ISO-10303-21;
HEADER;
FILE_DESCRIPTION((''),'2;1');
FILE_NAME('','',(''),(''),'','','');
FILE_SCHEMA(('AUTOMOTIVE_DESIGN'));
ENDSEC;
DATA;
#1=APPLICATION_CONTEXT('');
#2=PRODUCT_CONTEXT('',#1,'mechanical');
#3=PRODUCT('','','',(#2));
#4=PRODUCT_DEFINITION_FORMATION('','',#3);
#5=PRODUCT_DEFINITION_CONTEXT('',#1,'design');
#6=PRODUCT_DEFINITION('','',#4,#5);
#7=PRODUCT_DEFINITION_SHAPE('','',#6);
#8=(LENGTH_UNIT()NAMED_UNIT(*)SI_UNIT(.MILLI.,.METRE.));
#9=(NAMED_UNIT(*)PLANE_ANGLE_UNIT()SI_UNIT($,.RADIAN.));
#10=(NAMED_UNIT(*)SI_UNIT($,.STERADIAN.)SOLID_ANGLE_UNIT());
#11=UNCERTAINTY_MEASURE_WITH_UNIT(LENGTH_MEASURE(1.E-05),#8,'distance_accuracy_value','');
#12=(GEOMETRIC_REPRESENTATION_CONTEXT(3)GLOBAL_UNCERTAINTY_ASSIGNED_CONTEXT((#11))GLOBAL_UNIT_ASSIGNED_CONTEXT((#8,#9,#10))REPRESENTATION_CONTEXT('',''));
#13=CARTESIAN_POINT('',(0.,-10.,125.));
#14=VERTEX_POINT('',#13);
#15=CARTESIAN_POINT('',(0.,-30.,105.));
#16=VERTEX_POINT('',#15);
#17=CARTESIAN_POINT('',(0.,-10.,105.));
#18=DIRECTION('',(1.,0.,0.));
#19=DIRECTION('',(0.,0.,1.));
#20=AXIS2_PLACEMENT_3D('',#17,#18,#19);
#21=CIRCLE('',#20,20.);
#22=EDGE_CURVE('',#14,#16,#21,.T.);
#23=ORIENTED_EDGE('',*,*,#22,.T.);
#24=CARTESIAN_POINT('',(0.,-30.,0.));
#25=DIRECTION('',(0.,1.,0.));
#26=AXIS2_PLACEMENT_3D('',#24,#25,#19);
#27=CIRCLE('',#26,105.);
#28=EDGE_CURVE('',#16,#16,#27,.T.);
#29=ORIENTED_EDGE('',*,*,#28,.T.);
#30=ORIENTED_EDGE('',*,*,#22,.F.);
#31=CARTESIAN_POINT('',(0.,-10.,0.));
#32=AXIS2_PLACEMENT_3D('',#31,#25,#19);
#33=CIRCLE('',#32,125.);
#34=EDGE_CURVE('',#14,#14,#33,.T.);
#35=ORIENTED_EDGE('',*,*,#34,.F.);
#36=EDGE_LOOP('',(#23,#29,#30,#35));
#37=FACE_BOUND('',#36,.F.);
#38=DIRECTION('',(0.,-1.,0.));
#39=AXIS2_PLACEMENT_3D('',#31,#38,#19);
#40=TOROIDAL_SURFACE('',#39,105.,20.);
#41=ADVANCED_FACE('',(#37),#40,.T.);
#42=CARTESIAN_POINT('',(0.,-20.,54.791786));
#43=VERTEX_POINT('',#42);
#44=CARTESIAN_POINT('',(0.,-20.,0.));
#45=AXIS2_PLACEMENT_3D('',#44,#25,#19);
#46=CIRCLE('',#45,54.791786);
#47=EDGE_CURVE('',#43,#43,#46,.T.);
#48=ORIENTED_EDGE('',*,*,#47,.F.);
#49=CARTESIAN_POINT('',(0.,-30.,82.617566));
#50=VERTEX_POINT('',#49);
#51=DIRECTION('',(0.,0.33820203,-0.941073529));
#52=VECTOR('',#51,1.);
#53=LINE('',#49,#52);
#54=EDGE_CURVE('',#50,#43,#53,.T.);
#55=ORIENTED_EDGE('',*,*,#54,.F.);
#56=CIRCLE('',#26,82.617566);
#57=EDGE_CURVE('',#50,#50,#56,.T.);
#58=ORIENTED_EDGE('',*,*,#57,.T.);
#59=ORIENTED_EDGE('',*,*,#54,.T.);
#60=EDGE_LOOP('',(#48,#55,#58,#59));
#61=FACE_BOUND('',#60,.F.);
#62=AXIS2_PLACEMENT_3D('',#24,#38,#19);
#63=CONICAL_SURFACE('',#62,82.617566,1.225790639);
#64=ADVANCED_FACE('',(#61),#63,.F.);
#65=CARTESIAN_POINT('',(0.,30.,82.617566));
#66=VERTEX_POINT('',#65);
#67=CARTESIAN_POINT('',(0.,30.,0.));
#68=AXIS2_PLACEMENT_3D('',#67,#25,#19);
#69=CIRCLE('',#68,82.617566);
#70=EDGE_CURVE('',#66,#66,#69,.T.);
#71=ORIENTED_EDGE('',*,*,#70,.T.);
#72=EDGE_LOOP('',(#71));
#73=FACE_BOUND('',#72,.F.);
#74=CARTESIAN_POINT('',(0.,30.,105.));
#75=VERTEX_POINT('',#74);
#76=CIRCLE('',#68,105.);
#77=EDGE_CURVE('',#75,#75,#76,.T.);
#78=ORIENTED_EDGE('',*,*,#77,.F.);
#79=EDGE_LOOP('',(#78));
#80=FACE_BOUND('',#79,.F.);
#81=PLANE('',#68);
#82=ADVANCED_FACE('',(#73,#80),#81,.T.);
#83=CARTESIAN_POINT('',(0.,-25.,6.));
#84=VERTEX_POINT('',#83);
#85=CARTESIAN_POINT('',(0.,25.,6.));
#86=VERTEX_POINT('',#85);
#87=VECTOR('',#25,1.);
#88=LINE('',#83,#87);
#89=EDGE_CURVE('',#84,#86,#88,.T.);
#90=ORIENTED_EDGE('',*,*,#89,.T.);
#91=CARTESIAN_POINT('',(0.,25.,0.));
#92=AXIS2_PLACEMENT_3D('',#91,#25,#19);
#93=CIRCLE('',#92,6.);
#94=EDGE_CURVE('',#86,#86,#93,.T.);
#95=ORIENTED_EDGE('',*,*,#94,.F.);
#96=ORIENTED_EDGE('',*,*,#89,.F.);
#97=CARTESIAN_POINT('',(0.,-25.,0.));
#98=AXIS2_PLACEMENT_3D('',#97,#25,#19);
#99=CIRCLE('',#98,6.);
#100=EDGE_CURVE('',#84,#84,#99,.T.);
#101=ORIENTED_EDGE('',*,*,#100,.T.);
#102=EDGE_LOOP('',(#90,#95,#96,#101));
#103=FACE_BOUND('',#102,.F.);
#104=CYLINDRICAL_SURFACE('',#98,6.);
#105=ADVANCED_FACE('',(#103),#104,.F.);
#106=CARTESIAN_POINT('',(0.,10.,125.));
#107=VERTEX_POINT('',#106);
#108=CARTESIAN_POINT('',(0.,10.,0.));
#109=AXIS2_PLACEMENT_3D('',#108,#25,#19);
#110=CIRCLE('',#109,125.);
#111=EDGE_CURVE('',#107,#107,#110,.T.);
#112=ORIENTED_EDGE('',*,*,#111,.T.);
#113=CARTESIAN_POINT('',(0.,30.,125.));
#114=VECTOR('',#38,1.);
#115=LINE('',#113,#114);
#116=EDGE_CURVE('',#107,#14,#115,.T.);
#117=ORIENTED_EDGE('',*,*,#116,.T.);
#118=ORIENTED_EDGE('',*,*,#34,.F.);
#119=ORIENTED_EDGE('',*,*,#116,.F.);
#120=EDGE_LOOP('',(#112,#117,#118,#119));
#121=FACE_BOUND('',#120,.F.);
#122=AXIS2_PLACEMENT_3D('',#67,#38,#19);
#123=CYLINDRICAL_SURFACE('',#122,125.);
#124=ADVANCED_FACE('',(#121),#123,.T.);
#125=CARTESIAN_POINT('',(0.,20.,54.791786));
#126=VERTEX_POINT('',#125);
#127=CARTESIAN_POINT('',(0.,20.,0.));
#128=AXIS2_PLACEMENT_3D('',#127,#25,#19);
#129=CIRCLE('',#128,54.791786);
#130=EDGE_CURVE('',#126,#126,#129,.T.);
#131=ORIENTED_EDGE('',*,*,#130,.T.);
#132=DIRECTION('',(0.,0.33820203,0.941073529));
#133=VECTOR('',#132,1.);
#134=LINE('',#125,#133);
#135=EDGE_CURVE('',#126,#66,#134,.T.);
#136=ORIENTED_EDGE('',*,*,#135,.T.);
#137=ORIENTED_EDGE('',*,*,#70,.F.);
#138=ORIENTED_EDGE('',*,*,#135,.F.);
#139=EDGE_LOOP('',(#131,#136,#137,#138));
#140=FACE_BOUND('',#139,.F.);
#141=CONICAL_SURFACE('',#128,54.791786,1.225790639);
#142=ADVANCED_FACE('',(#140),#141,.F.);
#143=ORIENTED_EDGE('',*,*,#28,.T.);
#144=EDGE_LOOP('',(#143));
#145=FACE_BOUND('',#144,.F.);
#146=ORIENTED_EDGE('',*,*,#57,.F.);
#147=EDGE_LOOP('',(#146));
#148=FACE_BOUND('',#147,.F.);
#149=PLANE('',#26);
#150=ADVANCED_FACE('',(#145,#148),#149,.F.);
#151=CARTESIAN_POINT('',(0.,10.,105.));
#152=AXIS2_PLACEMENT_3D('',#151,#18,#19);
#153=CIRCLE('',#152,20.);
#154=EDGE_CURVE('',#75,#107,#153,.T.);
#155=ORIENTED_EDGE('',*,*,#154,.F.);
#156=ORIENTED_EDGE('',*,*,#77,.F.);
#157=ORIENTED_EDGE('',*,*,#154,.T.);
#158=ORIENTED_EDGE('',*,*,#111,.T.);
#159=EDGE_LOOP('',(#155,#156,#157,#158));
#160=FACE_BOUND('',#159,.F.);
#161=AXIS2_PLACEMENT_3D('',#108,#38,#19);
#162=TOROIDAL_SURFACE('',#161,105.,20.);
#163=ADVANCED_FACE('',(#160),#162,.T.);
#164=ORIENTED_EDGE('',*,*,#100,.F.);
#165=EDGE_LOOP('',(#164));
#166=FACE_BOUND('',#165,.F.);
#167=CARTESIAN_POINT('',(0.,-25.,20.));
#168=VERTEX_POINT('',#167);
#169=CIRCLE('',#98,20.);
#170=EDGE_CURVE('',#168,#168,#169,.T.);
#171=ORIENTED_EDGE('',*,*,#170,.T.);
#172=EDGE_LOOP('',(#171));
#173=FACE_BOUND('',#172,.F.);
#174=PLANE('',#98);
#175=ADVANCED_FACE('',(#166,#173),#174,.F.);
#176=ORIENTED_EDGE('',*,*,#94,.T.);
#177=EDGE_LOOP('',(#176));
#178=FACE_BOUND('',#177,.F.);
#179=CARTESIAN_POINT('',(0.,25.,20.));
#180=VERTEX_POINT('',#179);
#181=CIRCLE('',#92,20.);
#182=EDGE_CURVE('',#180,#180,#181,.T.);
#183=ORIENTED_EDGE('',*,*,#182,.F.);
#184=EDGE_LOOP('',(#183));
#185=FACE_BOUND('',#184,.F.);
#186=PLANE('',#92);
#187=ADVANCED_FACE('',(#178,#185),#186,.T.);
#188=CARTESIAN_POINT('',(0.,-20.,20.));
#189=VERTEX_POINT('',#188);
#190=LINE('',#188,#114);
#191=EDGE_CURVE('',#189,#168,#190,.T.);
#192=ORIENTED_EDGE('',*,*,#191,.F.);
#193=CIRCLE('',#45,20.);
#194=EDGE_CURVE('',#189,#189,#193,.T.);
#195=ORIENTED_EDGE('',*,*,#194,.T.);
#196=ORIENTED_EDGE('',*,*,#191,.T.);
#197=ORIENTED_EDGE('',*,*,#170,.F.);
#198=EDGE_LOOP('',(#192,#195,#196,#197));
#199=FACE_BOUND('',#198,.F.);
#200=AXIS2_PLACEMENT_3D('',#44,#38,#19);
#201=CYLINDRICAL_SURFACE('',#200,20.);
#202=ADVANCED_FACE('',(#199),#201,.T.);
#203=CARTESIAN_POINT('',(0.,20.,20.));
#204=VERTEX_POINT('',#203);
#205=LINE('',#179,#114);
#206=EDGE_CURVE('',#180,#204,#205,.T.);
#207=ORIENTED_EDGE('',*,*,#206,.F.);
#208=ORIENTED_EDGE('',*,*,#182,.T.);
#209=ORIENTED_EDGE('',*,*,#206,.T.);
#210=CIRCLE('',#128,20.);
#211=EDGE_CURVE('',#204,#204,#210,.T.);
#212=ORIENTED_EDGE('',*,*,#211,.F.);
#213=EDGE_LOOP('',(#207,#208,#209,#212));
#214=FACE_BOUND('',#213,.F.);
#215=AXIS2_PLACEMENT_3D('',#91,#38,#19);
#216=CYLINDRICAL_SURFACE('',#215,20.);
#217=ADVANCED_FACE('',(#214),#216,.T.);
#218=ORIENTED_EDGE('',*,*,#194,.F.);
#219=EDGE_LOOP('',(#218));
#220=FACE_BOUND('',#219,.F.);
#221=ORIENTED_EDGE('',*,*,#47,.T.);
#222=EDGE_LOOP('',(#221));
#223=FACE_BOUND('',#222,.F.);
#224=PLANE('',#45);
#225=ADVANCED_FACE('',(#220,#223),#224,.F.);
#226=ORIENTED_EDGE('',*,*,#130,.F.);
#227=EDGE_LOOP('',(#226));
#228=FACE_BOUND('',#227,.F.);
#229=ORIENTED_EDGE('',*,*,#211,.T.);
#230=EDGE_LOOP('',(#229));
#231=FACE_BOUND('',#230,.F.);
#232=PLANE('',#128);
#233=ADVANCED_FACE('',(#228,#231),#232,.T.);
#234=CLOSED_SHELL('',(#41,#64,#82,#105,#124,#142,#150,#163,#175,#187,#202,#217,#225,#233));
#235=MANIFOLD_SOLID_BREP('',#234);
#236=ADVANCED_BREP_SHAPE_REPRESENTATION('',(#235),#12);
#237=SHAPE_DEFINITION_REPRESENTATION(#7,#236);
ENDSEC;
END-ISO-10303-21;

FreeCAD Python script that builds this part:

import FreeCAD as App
import Part
import Sketcher


def edges_at(feature, points):
    """Names of the edges that pass closest to the given points."""
    edges = feature.Shape.Edges
    near = lambda p: min(range(len(edges)), key=lambda i: edges[i].distToShape(Part.Vertex(*p))[0])
    return sorted({f"Edge{near(p) + 1}" for p in points})


def add_polygon(sketch, points):
    """Adds a closed chain of lines whose ends are joined by coincident constraints."""
    first, n = sketch.GeometryCount, len(points)
    for a, b in zip(points, points[1:] + points[:1]):
        sketch.addGeometry(Part.LineSegment(App.Vector(*a, 0), App.Vector(*b, 0)), False)
    for i in range(n):
        sketch.addConstraint(Sketcher.Constraint("Coincident", first + i, 2, first + (i + 1) % n, 1))

doc = App.newDocument("Part")
params = doc.addObject("Spreadsheet::Sheet", "Params")
for row, (alias, value) in enumerate([
    ("sketch1_width", "5 mm"),
    ("sketch1_width2", "50 mm"),
    ("sketch1_width3", "60 mm"),
    ("sketch1_height", "14 mm"),
    ("revolution_angle", "360 deg"),
    ("fillet_radius", "20 mm"),
], start=1):
    params.set(f"A{row}", alias)
    params.set(f"B{row}", "=" + value)
    params.setAlias(f"B{row}", alias)

body = doc.addObject("PartDesign::Body", "Body")

# Sketch on YZ plane
sketch1 = body.newObject("Sketcher::SketchObject", "Sketch")
sketch1.AttachmentSupport = (doc.getObject("YZ_Plane"), [""])
sketch1.MapMode = "FlatFace"
add_polygon(sketch1, [(-30, 83), (-20, 55), (-20, 20), (-25, 20), (-25, 6), (25, 6), (25, 20), (20, 20), (20, 55), (30, 83), (30, 125), (-30, 125)])  # lines 0-11
sketch1.addConstraint([
    Sketcher.Constraint("Vertical", 1),
    Sketcher.Constraint("Horizontal", 2),
    Sketcher.Constraint("Vertical", 3),
    Sketcher.Constraint("Horizontal", 4),
    Sketcher.Constraint("Vertical", 5),
    Sketcher.Constraint("Horizontal", 6),
    Sketcher.Constraint("Vertical", 7),
    Sketcher.Constraint("Vertical", 9),
    Sketcher.Constraint("Horizontal", 10),
    Sketcher.Constraint("Vertical", 11),
    Sketcher.Constraint("Symmetric", 2, 2, 5, 2, -2),
    Sketcher.Constraint("Symmetric", 0, 2, 7, 2, -2),
    Sketcher.Constraint("Symmetric", 8, 2, 11, 2, -2),
    Sketcher.Constraint("DistanceX", 2, 2, 2, 1, 5.0),
    Sketcher.Constraint("DistanceX", 4, 1, 4, 2, 50.0),
    Sketcher.Constraint("DistanceX", 10, 2, 10, 1, 60.0),
    Sketcher.Constraint("DistanceY", 3, 2, 3, 1, 14.0),
    Sketcher.Constraint("DistanceY", -1, 1, 1, 2, 20.0),
    Sketcher.Constraint("DistanceY", -1, 1, 9, 2, 125.0),
    Sketcher.Constraint("DistanceY", 1, 2, 1, 1, 34.791786),
    Sketcher.Constraint("DistanceY", 9, 1, 9, 2, 42.382434),
])
sketch1.setExpression("Constraints[25]", "Params.sketch1_width")
sketch1.setExpression("Constraints[26]", "Params.sketch1_width2")
sketch1.setExpression("Constraints[27]", "Params.sketch1_width3")
sketch1.setExpression("Constraints[28]", "Params.sketch1_height")
revolution = body.newObject("PartDesign::Revolution", "Revolution")
revolution.Profile = sketch1
revolution.ReferenceAxis = (sketch1, ["H_Axis"])
revolution.setExpression("Angle", "Params.revolution_angle")
doc.recompute()

fillet = body.newObject("PartDesign::Fillet", "Fillet")
fillet.Base = (revolution, edges_at(revolution, [(0, -30, -125), (0, 30, -125)]))
fillet.setExpression("Radius", "Params.fillet_radius")

doc.recompute()
